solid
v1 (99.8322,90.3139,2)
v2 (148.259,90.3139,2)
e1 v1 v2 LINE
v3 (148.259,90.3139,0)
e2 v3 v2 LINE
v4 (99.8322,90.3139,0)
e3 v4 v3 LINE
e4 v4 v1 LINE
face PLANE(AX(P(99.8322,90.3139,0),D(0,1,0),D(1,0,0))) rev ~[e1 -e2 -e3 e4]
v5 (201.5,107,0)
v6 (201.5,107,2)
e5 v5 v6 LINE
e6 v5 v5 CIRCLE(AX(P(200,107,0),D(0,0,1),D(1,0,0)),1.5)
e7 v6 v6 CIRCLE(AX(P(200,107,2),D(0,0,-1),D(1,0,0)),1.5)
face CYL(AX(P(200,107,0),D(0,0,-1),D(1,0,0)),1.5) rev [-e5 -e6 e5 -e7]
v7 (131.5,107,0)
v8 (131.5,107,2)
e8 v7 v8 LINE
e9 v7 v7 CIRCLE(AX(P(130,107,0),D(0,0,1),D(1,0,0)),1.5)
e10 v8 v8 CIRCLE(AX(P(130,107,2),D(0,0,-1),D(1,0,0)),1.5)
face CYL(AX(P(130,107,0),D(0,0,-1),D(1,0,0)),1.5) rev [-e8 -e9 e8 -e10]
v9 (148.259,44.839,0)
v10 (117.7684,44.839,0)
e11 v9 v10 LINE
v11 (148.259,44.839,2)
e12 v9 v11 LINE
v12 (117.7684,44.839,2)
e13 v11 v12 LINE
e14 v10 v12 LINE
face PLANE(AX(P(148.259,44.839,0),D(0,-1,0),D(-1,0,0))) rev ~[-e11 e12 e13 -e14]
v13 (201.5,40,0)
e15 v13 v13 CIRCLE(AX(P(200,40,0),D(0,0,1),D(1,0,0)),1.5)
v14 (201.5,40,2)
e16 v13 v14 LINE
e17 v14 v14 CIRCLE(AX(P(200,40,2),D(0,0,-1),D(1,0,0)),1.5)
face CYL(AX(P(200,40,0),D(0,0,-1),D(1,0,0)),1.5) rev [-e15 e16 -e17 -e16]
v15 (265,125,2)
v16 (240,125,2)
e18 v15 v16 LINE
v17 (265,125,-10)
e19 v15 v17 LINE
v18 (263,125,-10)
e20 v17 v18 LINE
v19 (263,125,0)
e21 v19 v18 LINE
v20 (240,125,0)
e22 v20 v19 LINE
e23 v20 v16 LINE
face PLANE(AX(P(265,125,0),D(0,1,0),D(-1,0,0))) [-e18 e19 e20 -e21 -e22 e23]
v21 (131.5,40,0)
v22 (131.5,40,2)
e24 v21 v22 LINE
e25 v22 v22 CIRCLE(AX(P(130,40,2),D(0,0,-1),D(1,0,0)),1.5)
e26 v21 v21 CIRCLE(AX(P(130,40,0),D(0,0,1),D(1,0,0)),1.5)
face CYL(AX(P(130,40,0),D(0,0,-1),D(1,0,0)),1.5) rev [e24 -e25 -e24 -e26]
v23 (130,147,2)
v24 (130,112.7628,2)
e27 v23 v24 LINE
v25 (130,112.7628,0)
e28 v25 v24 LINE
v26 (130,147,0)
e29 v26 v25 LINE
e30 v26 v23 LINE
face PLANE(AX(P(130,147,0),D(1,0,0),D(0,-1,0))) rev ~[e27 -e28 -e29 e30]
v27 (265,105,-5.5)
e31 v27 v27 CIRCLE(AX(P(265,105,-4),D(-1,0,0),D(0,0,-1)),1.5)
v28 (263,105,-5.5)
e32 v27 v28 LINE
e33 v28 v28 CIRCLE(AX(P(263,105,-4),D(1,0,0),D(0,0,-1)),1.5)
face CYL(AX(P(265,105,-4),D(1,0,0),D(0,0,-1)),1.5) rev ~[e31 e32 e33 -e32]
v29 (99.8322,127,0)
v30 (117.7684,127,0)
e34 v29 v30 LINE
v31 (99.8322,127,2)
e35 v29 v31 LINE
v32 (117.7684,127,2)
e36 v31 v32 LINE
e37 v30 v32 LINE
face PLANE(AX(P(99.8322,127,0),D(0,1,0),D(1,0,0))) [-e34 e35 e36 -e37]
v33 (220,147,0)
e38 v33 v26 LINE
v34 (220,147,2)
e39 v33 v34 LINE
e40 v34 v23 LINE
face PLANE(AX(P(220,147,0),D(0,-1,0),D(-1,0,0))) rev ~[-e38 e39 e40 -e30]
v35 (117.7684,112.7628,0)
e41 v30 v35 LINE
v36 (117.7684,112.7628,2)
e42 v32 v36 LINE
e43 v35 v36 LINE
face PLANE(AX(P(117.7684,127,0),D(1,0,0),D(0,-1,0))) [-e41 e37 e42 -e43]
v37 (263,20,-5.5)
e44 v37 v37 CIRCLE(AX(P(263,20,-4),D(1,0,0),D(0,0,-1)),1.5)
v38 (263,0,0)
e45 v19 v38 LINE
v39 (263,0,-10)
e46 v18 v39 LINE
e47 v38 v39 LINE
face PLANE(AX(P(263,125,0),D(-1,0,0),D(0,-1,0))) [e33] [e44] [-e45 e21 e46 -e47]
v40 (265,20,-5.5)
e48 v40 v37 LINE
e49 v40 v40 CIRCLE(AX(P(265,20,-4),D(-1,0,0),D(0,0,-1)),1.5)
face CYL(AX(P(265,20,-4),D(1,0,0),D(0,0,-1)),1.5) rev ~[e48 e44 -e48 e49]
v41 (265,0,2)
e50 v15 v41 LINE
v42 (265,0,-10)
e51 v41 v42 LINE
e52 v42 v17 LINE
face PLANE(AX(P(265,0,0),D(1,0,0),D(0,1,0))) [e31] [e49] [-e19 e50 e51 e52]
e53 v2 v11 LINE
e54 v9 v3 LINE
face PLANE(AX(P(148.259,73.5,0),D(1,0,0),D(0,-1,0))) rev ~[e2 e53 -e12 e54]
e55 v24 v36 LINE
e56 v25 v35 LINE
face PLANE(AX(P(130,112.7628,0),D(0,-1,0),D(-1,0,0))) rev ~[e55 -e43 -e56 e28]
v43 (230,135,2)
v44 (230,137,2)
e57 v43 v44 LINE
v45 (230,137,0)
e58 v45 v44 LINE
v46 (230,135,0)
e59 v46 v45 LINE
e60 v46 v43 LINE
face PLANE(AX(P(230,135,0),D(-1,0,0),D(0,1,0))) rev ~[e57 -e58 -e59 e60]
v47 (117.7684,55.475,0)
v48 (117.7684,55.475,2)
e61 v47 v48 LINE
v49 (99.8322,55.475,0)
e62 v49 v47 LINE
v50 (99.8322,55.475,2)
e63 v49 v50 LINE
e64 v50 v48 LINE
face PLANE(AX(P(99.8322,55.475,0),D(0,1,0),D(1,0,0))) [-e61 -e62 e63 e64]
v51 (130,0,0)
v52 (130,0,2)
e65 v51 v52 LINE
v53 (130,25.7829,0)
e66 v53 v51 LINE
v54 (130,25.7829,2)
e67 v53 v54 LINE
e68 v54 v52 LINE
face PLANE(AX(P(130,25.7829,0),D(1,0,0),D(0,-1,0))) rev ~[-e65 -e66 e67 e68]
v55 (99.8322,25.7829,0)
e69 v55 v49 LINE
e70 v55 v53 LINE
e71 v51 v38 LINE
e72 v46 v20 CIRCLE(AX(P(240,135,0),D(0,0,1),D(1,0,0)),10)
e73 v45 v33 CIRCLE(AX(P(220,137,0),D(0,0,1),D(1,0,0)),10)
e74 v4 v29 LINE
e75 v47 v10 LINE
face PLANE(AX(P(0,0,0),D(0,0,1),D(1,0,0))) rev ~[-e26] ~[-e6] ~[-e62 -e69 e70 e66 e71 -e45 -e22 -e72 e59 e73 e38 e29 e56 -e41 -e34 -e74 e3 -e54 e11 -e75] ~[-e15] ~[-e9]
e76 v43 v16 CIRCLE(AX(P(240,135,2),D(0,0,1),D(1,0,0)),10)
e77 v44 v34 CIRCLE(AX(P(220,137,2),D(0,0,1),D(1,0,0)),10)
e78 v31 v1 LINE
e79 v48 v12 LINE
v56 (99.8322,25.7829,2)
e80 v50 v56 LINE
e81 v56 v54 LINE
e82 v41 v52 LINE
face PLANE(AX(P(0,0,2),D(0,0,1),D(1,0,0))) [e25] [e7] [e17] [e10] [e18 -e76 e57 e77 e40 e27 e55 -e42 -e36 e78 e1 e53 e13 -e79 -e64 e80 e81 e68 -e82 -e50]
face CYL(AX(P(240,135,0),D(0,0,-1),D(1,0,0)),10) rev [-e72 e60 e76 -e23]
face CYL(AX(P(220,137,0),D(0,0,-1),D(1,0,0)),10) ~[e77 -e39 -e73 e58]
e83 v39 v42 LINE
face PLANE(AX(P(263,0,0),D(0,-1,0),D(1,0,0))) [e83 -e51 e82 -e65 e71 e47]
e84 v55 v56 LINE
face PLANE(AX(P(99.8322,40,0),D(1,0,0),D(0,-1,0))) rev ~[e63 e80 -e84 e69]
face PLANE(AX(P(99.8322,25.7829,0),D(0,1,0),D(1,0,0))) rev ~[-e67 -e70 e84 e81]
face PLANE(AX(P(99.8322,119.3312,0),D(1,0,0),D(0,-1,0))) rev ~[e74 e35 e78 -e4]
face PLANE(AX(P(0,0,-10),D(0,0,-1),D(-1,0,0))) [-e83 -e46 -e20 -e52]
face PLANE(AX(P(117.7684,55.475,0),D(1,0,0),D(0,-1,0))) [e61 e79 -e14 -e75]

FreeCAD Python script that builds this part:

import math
import FreeCAD as App
import Part
import Sketcher
from FreeCAD import Vector


def add_polygon(sketch, points):
    """Adds a closed chain of lines whose ends are joined by coincident constraints."""
    first, n = sketch.GeometryCount, len(points)
    for a, b in zip(points, points[1:] + points[:1]):
        sketch.addGeometry(Part.LineSegment(App.Vector(*a, 0), App.Vector(*b, 0)), False)
    for i in range(n):
        sketch.addConstraint(Sketcher.Constraint("Coincident", first + i, 2, first + (i + 1) % n, 1))

doc = App.newDocument("Part")
params = doc.addObject("Spreadsheet::Sheet", "Params")
for row, (alias, value) in enumerate([
    ("sketch1_diameter", "3 mm"),
    ("sketch1_radius", "10 mm"),
    ("sketch1_width", "135 mm"),
    ("sketch1_height", "2 mm"),
    ("pad1_length", "2 mm"),
    ("sketch2_width", "2 mm"),
    ("sketch2_height", "125 mm"),
    ("pad2_length", "10 mm"),
    ("sketch3_diameter", "3 mm"),
    ("pocket1_length", "10 mm"),
], start=1):
    params.set(f"A{row}", alias)
    params.set(f"B{row}", "=" + value)
    params.setAlias(f"B{row}", alias)

body = doc.addObject("PartDesign::Body", "Body")

# Sketch on XY plane
sketch1 = body.newObject("Sketcher::SketchObject", "Sketch")
sketch1.AttachmentSupport = (doc.getObject("XY_Plane"), [""])
sketch1.MapMode = "FlatFace"
sketch1.addGeometry([
    Part.LineSegment(Vector(130, 25.8, 0), Vector(130, 0, 0)),  # 0
    Part.LineSegment(Vector(130, 0, 0), Vector(265, 0, 0)),  # 1
    Part.LineSegment(Vector(265, 0, 0), Vector(265, 125, 0)),  # 2
    Part.LineSegment(Vector(265, 125, 0), Vector(240, 125, 0)),  # 3
    Part.ArcOfCircle(Part.Circle(Vector(240, 135, 0), Vector(0, 0, 1), 10), math.radians(180), math.radians(270)),  # 4
    Part.LineSegment(Vector(230, 135, 0), Vector(230, 137, 0)),  # 5
    Part.ArcOfCircle(Part.Circle(Vector(220, 137, 0), Vector(0, 0, 1), 10), math.radians(0), math.radians(90)),  # 6
    Part.LineSegment(Vector(220, 147, 0), Vector(130, 147, 0)),  # 7
    Part.LineSegment(Vector(130, 147, 0), Vector(130, 112.8, 0)),  # 8
    Part.LineSegment(Vector(130, 112.8, 0), Vector(117.8, 112.8, 0)),  # 9
    Part.LineSegment(Vector(117.8, 112.8, 0), Vector(117.8, 127, 0)),  # 10
    Part.LineSegment(Vector(117.8, 127, 0), Vector(99.8, 127, 0)),  # 11
    Part.LineSegment(Vector(99.8, 127, 0), Vector(99.8, 90.3, 0)),  # 12
    Part.LineSegment(Vector(99.8, 90.3, 0), Vector(148.3, 90.3, 0)),  # 13
    Part.LineSegment(Vector(148.3, 90.3, 0), Vector(148.3, 44.8, 0)),  # 14
    Part.LineSegment(Vector(148.3, 44.8, 0), Vector(117.8, 44.8, 0)),  # 15
    Part.LineSegment(Vector(117.8, 44.8, 0), Vector(117.8, 55.5, 0)),  # 16
    Part.LineSegment(Vector(117.8, 55.5, 0), Vector(99.8, 55.5, 0)),  # 17
    Part.LineSegment(Vector(99.8, 55.5, 0), Vector(99.8, 25.8, 0)),  # 18
    Part.LineSegment(Vector(99.8, 25.8, 0), Vector(130, 25.8, 0)),  # 19
    Part.Circle(Vector(130, 40, 0), Vector(0, 0, 1), 1.5),  # 20
    Part.Circle(Vector(200, 40, 0), Vector(0, 0, 1), 1.5),  # 21
    Part.Circle(Vector(200, 107, 0), Vector(0, 0, 1), 1.5),  # 22
    Part.Circle(Vector(130, 107, 0), Vector(0, 0, 1), 1.5),  # 23
], False)
sketch1.addConstraint([
    Sketcher.Constraint("Coincident", 0, 2, 1, 1),
    Sketcher.Constraint("Coincident", 1, 2, 2, 1),
    Sketcher.Constraint("Coincident", 2, 2, 3, 1),
    Sketcher.Constraint("Tangent", 3, 2, 4, 2),
    Sketcher.Constraint("Tangent", 4, 1, 5, 1),
    Sketcher.Constraint("Tangent", 5, 2, 6, 1),
    Sketcher.Constraint("Tangent", 6, 2, 7, 1),
    Sketcher.Constraint("Coincident", 7, 2, 8, 1),
    Sketcher.Constraint("Coincident", 8, 2, 9, 1),
    Sketcher.Constraint("Coincident", 9, 2, 10, 1),
    Sketcher.Constraint("Coincident", 10, 2, 11, 1),
    Sketcher.Constraint("Coincident", 11, 2, 12, 1),
    Sketcher.Constraint("Coincident", 12, 2, 13, 1),
    Sketcher.Constraint("Coincident", 13, 2, 14, 1),
    Sketcher.Constraint("Coincident", 14, 2, 15, 1),
    Sketcher.Constraint("Coincident", 15, 2, 16, 1),
    Sketcher.Constraint("Coincident", 16, 2, 17, 1),
    Sketcher.Constraint("Coincident", 17, 2, 18, 1),
    Sketcher.Constraint("Coincident", 18, 2, 19, 1),
    Sketcher.Constraint("Coincident", 19, 2, 0, 1),
    Sketcher.Constraint("Vertical", 0),
    Sketcher.Constraint("Horizontal", 1),
    Sketcher.Constraint("Vertical", 2),
    Sketcher.Constraint("Horizontal", 3),
    Sketcher.Constraint("Vertical", 5),
    Sketcher.Constraint("Horizontal", 7),
    Sketcher.Constraint("Vertical", 8),
    Sketcher.Constraint("Horizontal", 9),
    Sketcher.Constraint("Vertical", 10),
    Sketcher.Constraint("Horizontal", 11),
    Sketcher.Constraint("Vertical", 12),
    Sketcher.Constraint("Horizontal", 13),
    Sketcher.Constraint("Vertical", 14),
    Sketcher.Constraint("Horizontal", 15),
    Sketcher.Constraint("Vertical", 16),
    Sketcher.Constraint("Horizontal", 17),
    Sketcher.Constraint("Vertical", 18),
    Sketcher.Constraint("Horizontal", 19),
    Sketcher.Constraint("Equal", 4, 6),
    Sketcher.Constraint("Equal", 20, 21),
    Sketcher.Constraint("Equal", 21, 22),
    Sketcher.Constraint("Equal", 22, 23),
    Sketcher.Constraint("PointOnObject", 0, 2, -1),
    Sketcher.Constraint("Horizontal", 20, 3, 21, 3),
    Sketcher.Constraint("Horizontal", 22, 3, 23, 3),
    Sketcher.Constraint("Vertical", 21, 3, 22, 3),
    Sketcher.Constraint("Vertical", 20, 3, 23, 3),
    Sketcher.Constraint("Vertical", 23, 3, 0, 2),
    Sketcher.Constraint("Vertical", 0, 2, 7, 2),
    Sketcher.Constraint("Vertical", 10, 2, 15, 2),
    Sketcher.Constraint("Vertical", 12, 2, 17, 2),
    Sketcher.Constraint("Diameter", 20, 3.0),
    Sketcher.Constraint("Radius", 4, 10.0),
    Sketcher.Constraint("DistanceX", 1, 1, 1, 2, 135.0),
    Sketcher.Constraint("DistanceY", 5, 1, 5, 2, 2.0),
    Sketcher.Constraint("DistanceY", -1, 1, 4, 3, 135.0),
    Sketcher.Constraint("DistanceY", -1, 1, 20, 3, 40.0),
    Sketcher.Constraint("DistanceX", 20, 3, 21, 3, 70.0),
    Sketcher.Constraint("DistanceX", 21, 3, 6, 3, 20.0),
    Sketcher.Constraint("DistanceY", 21, 3, 22, 3, 67.0),
    Sketcher.Constraint("DistanceY", 23, 3, 10, 2, 20.0),
    Sketcher.Constraint("DistanceX", -1, 1, 4, 3, 240.0),
    Sketcher.Constraint("DistanceY", 0, 2, 0, 1, 25.783),
    Sketcher.Constraint("DistanceY", 12, 2, 12, 1, 36.686),
    Sketcher.Constraint("DistanceY", 14, 2, 14, 1, 45.475),
    Sketcher.Constraint("DistanceY", 16, 1, 16, 2, 10.636),
    Sketcher.Constraint("DistanceX", 9, 2, 9, 1, 12.2316),
    Sketcher.Constraint("DistanceX", 11, 2, 11, 1, 17.9362),
    Sketcher.Constraint("DistanceX", 13, 1, 13, 2, 48.4268),
    Sketcher.Constraint("DistanceY", 8, 2, 8, 1, 34.2372),
])
sketch1.setExpression("Constraints[51]", "Params.sketch1_diameter")
sketch1.setExpression("Constraints[52]", "Params.sketch1_radius")
sketch1.setExpression("Constraints[53]", "Params.sketch1_width")
sketch1.setExpression("Constraints[54]", "Params.sketch1_height")
pad1 = body.newObject("PartDesign::Pad", "Pad")
pad1.Profile = sketch1
pad1.setExpression("Length", "Params.pad1_length")

# Sketch on XY plane
sketch2 = body.newObject("Sketcher::SketchObject", "Sketch001")
sketch2.AttachmentSupport = (doc.getObject("XY_Plane"), [""])
sketch2.MapMode = "FlatFace"
add_polygon(sketch2, [(263, 125), (265, 125), (265, 0), (263, 0)])  # lines 0-3
sketch2.addConstraint([
    Sketcher.Constraint("Horizontal", 0),
    Sketcher.Constraint("Vertical", 1),
    Sketcher.Constraint("Horizontal", 2),
    Sketcher.Constraint("Vertical", 3),
    Sketcher.Constraint("PointOnObject", 1, 2, -1),
    Sketcher.Constraint("DistanceX", 0, 1, 0, 2, 2.0),
    Sketcher.Constraint("DistanceY", 1, 2, 1, 1, 125.0),
    Sketcher.Constraint("DistanceX", -1, 1, 0, 2, 265.0),
])
sketch2.setExpression("Constraints[9]", "Params.sketch2_width")
sketch2.setExpression("Constraints[10]", "Params.sketch2_height")
pad2 = body.newObject("PartDesign::Pad", "Pad001")
pad2.Profile = sketch2
pad2.setExpression("Length", "Params.pad2_length")
pad2.Reversed = True

# Sketch on YZ plane
sketch3 = body.newObject("Sketcher::SketchObject", "Sketch002")
sketch3.AttachmentSupport = (doc.getObject("YZ_Plane"), [""])
sketch3.MapMode = "FlatFace"
sketch3.AttachmentOffset = App.Placement(Vector(0, 0, 265), App.Rotation())
sketch3.addGeometry([
    Part.Circle(Vector(105, -4, 0), Vector(0, 0, 1), 1.5),
    Part.Circle(Vector(20, -4, 0), Vector(0, 0, 1), 1.5),
], False)
sketch3.addConstraint([
    Sketcher.Constraint("Equal", 0, 1),
    Sketcher.Constraint("Horizontal", 0, 3, 1, 3),
    Sketcher.Constraint("Diameter", 0, 3.0),
    Sketcher.Constraint("DistanceX", -1, 1, 1, 3, 20.0),
    Sketcher.Constraint("DistanceX", -1, 1, 0, 3, 105.0),
    Sketcher.Constraint("DistanceY", 0, 3, -1, 1, 4.0),
])
sketch3.setExpression("Constraints[2]", "Params.sketch3_diameter")
pocket1 = body.newObject("PartDesign::Pocket", "Pocket")
pocket1.Profile = sketch3
pocket1.setExpression("Length", "Params.pocket1_length")

doc.recompute()
